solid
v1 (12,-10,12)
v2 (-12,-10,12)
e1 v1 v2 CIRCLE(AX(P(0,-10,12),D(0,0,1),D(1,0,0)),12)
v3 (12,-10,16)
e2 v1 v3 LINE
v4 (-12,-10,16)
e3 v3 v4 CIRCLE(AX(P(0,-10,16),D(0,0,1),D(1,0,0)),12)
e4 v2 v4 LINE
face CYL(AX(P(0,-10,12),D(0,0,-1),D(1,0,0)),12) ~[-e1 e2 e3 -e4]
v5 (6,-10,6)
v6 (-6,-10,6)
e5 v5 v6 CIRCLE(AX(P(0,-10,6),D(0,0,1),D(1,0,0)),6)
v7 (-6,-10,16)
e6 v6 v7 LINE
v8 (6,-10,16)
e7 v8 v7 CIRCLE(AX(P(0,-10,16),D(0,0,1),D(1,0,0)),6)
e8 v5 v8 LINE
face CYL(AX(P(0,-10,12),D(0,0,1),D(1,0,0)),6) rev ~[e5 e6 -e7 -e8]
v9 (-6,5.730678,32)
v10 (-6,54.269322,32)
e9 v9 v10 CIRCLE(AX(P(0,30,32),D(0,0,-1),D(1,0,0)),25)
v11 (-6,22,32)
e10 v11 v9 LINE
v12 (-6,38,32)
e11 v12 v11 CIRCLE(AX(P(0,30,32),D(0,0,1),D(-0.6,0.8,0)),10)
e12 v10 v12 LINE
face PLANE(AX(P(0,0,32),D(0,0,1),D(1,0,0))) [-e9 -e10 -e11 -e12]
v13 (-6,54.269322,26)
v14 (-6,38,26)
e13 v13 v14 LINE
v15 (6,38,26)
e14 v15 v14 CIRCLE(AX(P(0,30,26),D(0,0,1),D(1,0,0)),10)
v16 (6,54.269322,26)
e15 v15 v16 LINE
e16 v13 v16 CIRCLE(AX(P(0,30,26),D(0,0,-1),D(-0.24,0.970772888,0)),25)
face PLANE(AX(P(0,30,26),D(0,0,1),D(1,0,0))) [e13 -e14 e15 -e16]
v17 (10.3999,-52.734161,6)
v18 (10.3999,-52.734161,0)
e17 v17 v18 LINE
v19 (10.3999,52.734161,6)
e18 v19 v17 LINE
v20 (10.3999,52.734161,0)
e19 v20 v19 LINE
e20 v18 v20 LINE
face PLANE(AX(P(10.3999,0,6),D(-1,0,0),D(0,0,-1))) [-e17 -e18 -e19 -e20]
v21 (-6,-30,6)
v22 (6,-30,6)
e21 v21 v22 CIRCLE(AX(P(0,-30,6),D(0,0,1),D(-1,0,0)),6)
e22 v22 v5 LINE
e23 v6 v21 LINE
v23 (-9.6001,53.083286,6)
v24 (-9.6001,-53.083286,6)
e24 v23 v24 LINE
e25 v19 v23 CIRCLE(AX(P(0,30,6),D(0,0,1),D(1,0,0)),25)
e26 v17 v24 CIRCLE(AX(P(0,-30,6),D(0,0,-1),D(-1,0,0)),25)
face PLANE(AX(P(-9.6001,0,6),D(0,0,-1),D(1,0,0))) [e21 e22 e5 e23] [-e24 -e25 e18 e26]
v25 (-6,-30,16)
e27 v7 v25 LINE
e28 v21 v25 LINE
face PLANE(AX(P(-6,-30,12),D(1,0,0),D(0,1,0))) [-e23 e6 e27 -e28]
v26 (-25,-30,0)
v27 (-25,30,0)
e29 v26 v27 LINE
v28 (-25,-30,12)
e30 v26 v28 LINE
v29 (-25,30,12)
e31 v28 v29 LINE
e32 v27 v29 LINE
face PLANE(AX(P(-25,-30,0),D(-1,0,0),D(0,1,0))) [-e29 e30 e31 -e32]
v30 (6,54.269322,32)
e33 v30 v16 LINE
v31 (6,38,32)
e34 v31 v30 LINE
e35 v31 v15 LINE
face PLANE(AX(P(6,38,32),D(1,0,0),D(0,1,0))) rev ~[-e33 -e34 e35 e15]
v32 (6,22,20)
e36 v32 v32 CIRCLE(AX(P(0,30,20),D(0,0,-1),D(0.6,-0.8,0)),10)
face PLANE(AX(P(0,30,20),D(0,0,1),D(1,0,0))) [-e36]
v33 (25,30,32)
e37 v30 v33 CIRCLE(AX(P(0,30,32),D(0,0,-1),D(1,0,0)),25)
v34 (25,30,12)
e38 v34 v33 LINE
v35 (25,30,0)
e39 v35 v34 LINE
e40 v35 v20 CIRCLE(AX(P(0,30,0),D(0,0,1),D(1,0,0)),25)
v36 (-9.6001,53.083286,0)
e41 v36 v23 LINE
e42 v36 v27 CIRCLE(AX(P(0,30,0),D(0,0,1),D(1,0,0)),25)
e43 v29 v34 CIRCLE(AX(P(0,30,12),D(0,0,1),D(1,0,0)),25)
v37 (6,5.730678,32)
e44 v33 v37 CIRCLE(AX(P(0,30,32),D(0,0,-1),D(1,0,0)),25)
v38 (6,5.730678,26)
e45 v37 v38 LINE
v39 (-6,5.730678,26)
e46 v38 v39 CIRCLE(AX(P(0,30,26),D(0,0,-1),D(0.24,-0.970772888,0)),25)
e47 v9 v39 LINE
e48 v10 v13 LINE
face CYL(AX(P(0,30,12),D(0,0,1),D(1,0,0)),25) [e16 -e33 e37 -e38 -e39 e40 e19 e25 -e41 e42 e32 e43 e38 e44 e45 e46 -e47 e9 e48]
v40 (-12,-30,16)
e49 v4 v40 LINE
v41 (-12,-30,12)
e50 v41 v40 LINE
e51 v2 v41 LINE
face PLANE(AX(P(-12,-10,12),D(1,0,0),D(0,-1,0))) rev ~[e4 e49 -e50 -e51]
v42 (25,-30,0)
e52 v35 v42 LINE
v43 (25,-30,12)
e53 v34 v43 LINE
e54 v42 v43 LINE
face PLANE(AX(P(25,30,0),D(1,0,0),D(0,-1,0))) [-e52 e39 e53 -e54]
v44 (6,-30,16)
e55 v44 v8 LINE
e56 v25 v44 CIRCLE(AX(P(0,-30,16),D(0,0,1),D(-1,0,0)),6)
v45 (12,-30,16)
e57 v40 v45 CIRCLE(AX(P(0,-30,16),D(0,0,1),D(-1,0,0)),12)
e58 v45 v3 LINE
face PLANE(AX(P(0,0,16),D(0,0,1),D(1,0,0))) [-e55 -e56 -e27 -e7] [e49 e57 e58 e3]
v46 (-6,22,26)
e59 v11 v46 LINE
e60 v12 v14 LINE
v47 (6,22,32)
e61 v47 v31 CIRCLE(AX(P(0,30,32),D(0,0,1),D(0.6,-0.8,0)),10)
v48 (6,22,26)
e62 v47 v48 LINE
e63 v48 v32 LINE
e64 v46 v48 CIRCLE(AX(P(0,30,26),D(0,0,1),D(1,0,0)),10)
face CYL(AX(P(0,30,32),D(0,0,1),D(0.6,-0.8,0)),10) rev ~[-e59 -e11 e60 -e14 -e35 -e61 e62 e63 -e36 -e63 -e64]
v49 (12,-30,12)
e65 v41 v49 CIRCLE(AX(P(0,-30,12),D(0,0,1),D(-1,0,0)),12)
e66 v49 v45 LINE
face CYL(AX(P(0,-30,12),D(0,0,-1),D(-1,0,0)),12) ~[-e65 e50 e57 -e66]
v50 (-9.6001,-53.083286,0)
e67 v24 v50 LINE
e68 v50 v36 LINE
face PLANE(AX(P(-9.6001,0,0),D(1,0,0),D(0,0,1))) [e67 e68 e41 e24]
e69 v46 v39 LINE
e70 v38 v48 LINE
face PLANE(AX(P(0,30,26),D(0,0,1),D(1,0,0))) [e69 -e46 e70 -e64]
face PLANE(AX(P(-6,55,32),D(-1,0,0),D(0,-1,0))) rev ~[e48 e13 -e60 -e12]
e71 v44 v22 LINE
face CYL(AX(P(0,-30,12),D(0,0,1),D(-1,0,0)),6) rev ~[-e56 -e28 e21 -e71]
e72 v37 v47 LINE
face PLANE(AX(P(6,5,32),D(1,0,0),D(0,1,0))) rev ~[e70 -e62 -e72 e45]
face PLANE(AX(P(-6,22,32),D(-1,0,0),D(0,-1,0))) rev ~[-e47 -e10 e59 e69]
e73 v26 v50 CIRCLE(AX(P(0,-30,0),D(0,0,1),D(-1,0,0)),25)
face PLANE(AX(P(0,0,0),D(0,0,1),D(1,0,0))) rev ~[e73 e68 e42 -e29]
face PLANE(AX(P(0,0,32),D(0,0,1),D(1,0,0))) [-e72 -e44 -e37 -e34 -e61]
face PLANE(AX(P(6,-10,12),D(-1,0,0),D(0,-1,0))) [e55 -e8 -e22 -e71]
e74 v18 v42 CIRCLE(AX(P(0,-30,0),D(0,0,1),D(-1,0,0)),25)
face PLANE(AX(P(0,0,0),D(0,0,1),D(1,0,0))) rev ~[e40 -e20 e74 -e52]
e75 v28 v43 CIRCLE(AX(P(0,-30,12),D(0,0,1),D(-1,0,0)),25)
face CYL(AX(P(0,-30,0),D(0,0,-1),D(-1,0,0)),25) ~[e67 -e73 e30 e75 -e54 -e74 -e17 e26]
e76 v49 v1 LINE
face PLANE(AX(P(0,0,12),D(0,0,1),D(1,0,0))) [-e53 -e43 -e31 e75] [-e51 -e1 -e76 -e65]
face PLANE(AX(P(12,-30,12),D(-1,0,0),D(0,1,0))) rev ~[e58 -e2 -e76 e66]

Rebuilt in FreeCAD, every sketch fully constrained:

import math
import FreeCAD as App
import Part
import Sketcher
from FreeCAD import Vector
Q = App.Units.Quantity


def add_polygon(sketch, points):
    """Adds a closed chain of lines whose ends are joined by coincident constraints."""
    first, n = sketch.GeometryCount, len(points)
    for a, b in zip(points, points[1:] + points[:1]):
        sketch.addGeometry(Part.LineSegment(App.Vector(*a, 0), App.Vector(*b, 0)), False)
    for i in range(n):
        sketch.addConstraint(Sketcher.Constraint("Coincident", first + i, 2, first + (i + 1) % n, 1))

doc = App.newDocument("Part")
params = doc.addObject("Spreadsheet::Sheet", "Params")
for row, (alias, value) in enumerate([
    ("sketch1_radius", "25 mm"),
    ("sketch1_height", "60 mm"),
    ("pad1_length", "12 mm"),
    ("sketch2_diameter", "50 mm"),
    ("pad2_length", "20 mm"),
    ("pad2_length2", "12 mm"),
    ("sketch3_width", "12 mm"),
    ("sketch3_radius", "10 mm"),
    ("pocket1_length", "6 mm"),
    ("sketch4_diameter", "20 mm"),
    ("pocket2_length", "6 mm"),
    ("sketch5_radius", "12 mm"),
    ("sketch5_radius2", "6 mm"),
    ("sketch5_height", "20 mm"),
    ("pad3_length", "4 mm"),
    ("sketch6_width", "20 mm"),
    ("sketch6_height", "6 mm"),
    ("sketch7_radius", "6 mm"),
    ("sketch7_height", "20 mm"),
], start=1):
    params.set(f"A{row}", alias)
    params.set(f"B{row}", "=" + value)
    params.setAlias(f"B{row}", alias)

body = doc.addObject("PartDesign::Body", "Body")

sketch1 = body.newObject("Sketcher::SketchObject", "Sketch")
sketch1.AttachmentSupport = (doc.getObject("XY_Plane"), [""])
sketch1.MapMode = "FlatFace"
sketch1.addGeometry([
    Part.LineSegment(Vector(25, 30, 0), Vector(-25, 30, 0)),
    Part.LineSegment(Vector(-25, 30, 0), Vector(-25, -30, 0)),
    Part.ArcOfCircle(Part.Circle(Vector(0, -30, 0), Vector(0, 0, 1), 25), math.radians(180), math.radians(360)),
    Part.LineSegment(Vector(25, -30, 0), Vector(25, 30, 0)),
], False)
sketch1.addConstraint([
    Sketcher.Constraint("Coincident", 0, 2, 1, 1),
    Sketcher.Constraint("Tangent", 1, 2, 2, 1),
    Sketcher.Constraint("Tangent", 2, 2, 3, 1),
    Sketcher.Constraint("Coincident", 3, 2, 0, 1),
    Sketcher.Constraint("Horizontal", 0),
    Sketcher.Constraint("Vertical", 1),
    Sketcher.Constraint("Vertical", 3),
    Sketcher.Constraint("Symmetric", 0, 2, 2, 2, -1, 1),
    Sketcher.Constraint("Radius", 2, Q("25 mm")),
    Sketcher.Constraint("DistanceY", 1, 2, 1, 1, Q("60 mm")),
])
sketch1.setExpression("Constraints[8]", "Params.sketch1_radius")
sketch1.setExpression("Constraints[9]", "Params.sketch1_height")
pad1 = body.newObject("PartDesign::Pad", "Pad")
pad1.Profile = sketch1
pad1.setExpression("Length", "Params.pad1_length")

sketch2 = body.newObject("Sketcher::SketchObject", "Sketch001")
sketch2.AttachmentSupport = (doc.getObject("XY_Plane"), [""])
sketch2.MapMode = "FlatFace"
sketch2.AttachmentOffset = App.Placement(Vector(0, 0, 12), App.Rotation())
sketch2.addGeometry(Part.Circle(Vector(0, 30, 0), Vector(0, 0, 1), 25), False)
sketch2.addConstraint([
    Sketcher.Constraint("PointOnObject", 0, 3, -2),
    Sketcher.Constraint("Diameter", 0, Q("50 mm")),
    Sketcher.Constraint("DistanceY", -1, 1, 0, 3, Q("30 mm")),
])
sketch2.setExpression("Constraints[1]", "Params.sketch2_diameter")
pad2 = body.newObject("PartDesign::Pad", "Pad001")
pad2.Profile = sketch2
pad2.Type = "TwoLengths"
pad2.setExpression("Length", "Params.pad2_length")
pad2.setExpression("Length2", "Params.pad2_length2")

sketch3 = body.newObject("Sketcher::SketchObject", "Sketch002")
sketch3.AttachmentSupport = (doc.getObject("XY_Plane"), [""])
sketch3.MapMode = "FlatFace"
sketch3.AttachmentOffset = App.Placement(Vector(0, 0, 32), App.Rotation())
sketch3.addGeometry([
    Part.LineSegment(Vector(-6, 22, 0), Vector(-6, 5, 0)),
    Part.LineSegment(Vector(-6, 5, 0), Vector(6, 5, 0)),
    Part.LineSegment(Vector(6, 5, 0), Vector(6, 22, 0)),
    Part.ArcOfCircle(Part.Circle(Vector(0, 30, 0), Vector(0, 0, 1), 10), math.radians(-53), math.radians(53)),
    Part.LineSegment(Vector(6, 38, 0), Vector(6, 55, 0)),
    Part.LineSegment(Vector(6, 55, 0), Vector(-6, 55, 0)),
    Part.LineSegment(Vector(-6, 55, 0), Vector(-6, 38, 0)),
    Part.ArcOfCircle(Part.Circle(Vector(0, 30, 0), Vector(0, 0, 1), 10), math.radians(127), math.radians(233)),
], False)
sketch3.addConstraint([
    Sketcher.Constraint("Coincident", 0, 2, 1, 1),
    Sketcher.Constraint("Coincident", 1, 2, 2, 1),
    Sketcher.Constraint("Coincident", 2, 2, 3, 1),
    Sketcher.Constraint("Coincident", 3, 2, 4, 1),
    Sketcher.Constraint("Coincident", 4, 2, 5, 1),
    Sketcher.Constraint("Coincident", 5, 2, 6, 1),
    Sketcher.Constraint("Coincident", 6, 2, 7, 1),
    Sketcher.Constraint("Coincident", 7, 2, 0, 1),
    Sketcher.Constraint("Vertical", 0),
    Sketcher.Constraint("Horizontal", 1),
    Sketcher.Constraint("Vertical", 2),
    Sketcher.Constraint("Vertical", 4),
    Sketcher.Constraint("Horizontal", 5),
    Sketcher.Constraint("Vertical", 6),
    Sketcher.Constraint("Coincident", 7, 3, 3, 3),
    Sketcher.Constraint("Equal", 3, 7),
    Sketcher.Constraint("Symmetric", 3, 2, 6, 2, -2),
    Sketcher.Constraint("Horizontal", 2, 2, 7, 2),
    Sketcher.Constraint("Vertical", 2, 2, 3, 2),
    Sketcher.Constraint("Equal", 2, 4),
    Sketcher.Constraint("DistanceX", 1, 1, 1, 2, Q("12 mm")),
    Sketcher.Constraint("Radius", 3, Q("10 mm")),
    Sketcher.Constraint("DistanceY", 1, 2, 4, 2, Q("50 mm")),
    Sketcher.Constraint("DistanceY", -1, 1, 3, 3, Q("30 mm")),
])
sketch3.setExpression("Constraints[20]", "Params.sketch3_width")
sketch3.setExpression("Constraints[21]", "Params.sketch3_radius")
pocket1 = body.newObject("PartDesign::Pocket", "Pocket")
pocket1.Profile = sketch3
pocket1.setExpression("Length", "Params.pocket1_length")

sketch4 = body.newObject("Sketcher::SketchObject", "Sketch003")
sketch4.AttachmentSupport = (doc.getObject("XY_Plane"), [""])
sketch4.MapMode = "FlatFace"
sketch4.AttachmentOffset = App.Placement(Vector(0, 0, 26), App.Rotation())
sketch4.addGeometry(Part.Circle(Vector(0, 30, 0), Vector(0, 0, 1), 10), False)
sketch4.addConstraint([
    Sketcher.Constraint("PointOnObject", 0, 3, -2),
    Sketcher.Constraint("Diameter", 0, Q("20 mm")),
    Sketcher.Constraint("DistanceY", -1, 1, 0, 3, Q("30 mm")),
])
sketch4.setExpression("Constraints[1]", "Params.sketch4_diameter")
pocket2 = body.newObject("PartDesign::Pocket", "Pocket001")
pocket2.Profile = sketch4
pocket2.setExpression("Length", "Params.pocket2_length")

sketch5 = body.newObject("Sketcher::SketchObject", "Sketch004")
sketch5.AttachmentSupport = (doc.getObject("XY_Plane"), [""])
sketch5.MapMode = "FlatFace"
sketch5.AttachmentOffset = App.Placement(Vector(0, 0, 12), App.Rotation())
sketch5.addGeometry([
    Part.ArcOfCircle(Part.Circle(Vector(0, -30, 0), Vector(0, 0, 1), 12), math.radians(180), math.radians(360)),
    Part.LineSegment(Vector(12, -30, 0), Vector(12, -10, 0)),
    Part.ArcOfCircle(Part.Circle(Vector(0, -10, 0), Vector(0, 0, 1), 12), math.radians(0), math.radians(180)),
    Part.LineSegment(Vector(-12, -10, 0), Vector(-12, -30, 0)),
    Part.LineSegment(Vector(-6, -30, 0), Vector(-6, -10, 0)),
    Part.ArcOfCircle(Part.Circle(Vector(0, -10, 0), Vector(0, 0, 1), 6), math.radians(0), math.radians(180)),
    Part.LineSegment(Vector(6, -10, 0), Vector(6, -30, 0)),
    Part.ArcOfCircle(Part.Circle(Vector(0, -30, 0), Vector(0, 0, 1), 6), math.radians(180), math.radians(360)),
], False)
sketch5.addConstraint([
    Sketcher.Constraint("Tangent", 0, 2, 1, 1),
    Sketcher.Constraint("Tangent", 1, 2, 2, 1),
    Sketcher.Constraint("Tangent", 2, 2, 3, 1),
    Sketcher.Constraint("Tangent", 3, 2, 0, 1),
    Sketcher.Constraint("Tangent", 4, 2, 5, 2),
    Sketcher.Constraint("Tangent", 5, 1, 6, 1),
    Sketcher.Constraint("Tangent", 6, 2, 7, 2),
    Sketcher.Constraint("Tangent", 7, 1, 4, 1),
    Sketcher.Constraint("Vertical", 1),
    Sketcher.Constraint("Vertical", 3),
    Sketcher.Constraint("Vertical", 4),
    Sketcher.Constraint("Vertical", 6),
    Sketcher.Constraint("Coincident", 5, 3, 2, 3),
    Sketcher.Constraint("PointOnObject", 0, 3, -2),
    Sketcher.Constraint("Horizontal", 7, 3, 0, 2),
    Sketcher.Constraint("Radius", 0, Q("12 mm")),
    Sketcher.Constraint("Radius", 5, Q("6 mm")),
    Sketcher.Constraint("DistanceY", 1, 1, 1, 2, Q("20 mm")),
    Sketcher.Constraint("DistanceY", 0, 3, -1, 1, Q("30 mm")),
])
sketch5.setExpression("Constraints[15]", "Params.sketch5_radius")
sketch5.setExpression("Constraints[16]", "Params.sketch5_radius2")
sketch5.setExpression("Constraints[17]", "Params.sketch5_height")
pad3 = body.newObject("PartDesign::Pad", "Pad002")
pad3.Profile = sketch5
pad3.setExpression("Length", "Params.pad3_length")

sketch6 = body.newObject("Sketcher::SketchObject", "Sketch005")
sketch6.AttachmentSupport = (doc.getObject("XZ_Plane"), [""])
sketch6.MapMode = "FlatFace"
add_polygon(sketch6, [(10, 6), (10, 0), (-10, 0), (-10, 6)])
sketch6.addConstraint([
    Sketcher.Constraint("Vertical", 0),
    Sketcher.Constraint("Horizontal", 1),
    Sketcher.Constraint("Vertical", 2),
    Sketcher.Constraint("Horizontal", 3),
    Sketcher.Constraint("PointOnObject", 0, 2, -1),
    Sketcher.Constraint("DistanceX", 1, 2, 1, 1, Q("20 mm")),
    Sketcher.Constraint("DistanceY", 0, 2, 0, 1, Q("6 mm")),
    Sketcher.Constraint("DistanceX", -1, 1, 0, 2, Q("10.4 mm")),
])
sketch6.setExpression("Constraints[9]", "Params.sketch6_width")
sketch6.setExpression("Constraints[10]", "Params.sketch6_height")
pocket3 = body.newObject("PartDesign::Pocket", "Pocket002")
pocket3.Profile = sketch6
pocket3.Type = "ThroughAll"
pocket3.Midplane = True

sketch7 = body.newObject("Sketcher::SketchObject", "Sketch006")
sketch7.AttachmentSupport = (doc.getObject("XY_Plane"), [""])
sketch7.MapMode = "FlatFace"
sketch7.AttachmentOffset = App.Placement(Vector(0, 0, 12), App.Rotation())
sketch7.addGeometry([
    Part.LineSegment(Vector(6, -30, 0), Vector(6, -10, 0)),
    Part.ArcOfCircle(Part.Circle(Vector(0, -10, 0), Vector(0, 0, 1), 6), math.radians(0), math.radians(180)),
    Part.LineSegment(Vector(-6, -10, 0), Vector(-6, -30, 0)),
    Part.ArcOfCircle(Part.Circle(Vector(0, -30, 0), Vector(0, 0, 1), 6), math.radians(180), math.radians(360)),
], False)
sketch7.addConstraint([
    Sketcher.Constraint("Tangent", 0, 2, 1, 1),
    Sketcher.Constraint("Tangent", 1, 2, 2, 1),
    Sketcher.Constraint("Tangent", 2, 2, 3, 1),
    Sketcher.Constraint("Tangent", 3, 2, 0, 1),
    Sketcher.Constraint("Vertical", 0),
    Sketcher.Constraint("Vertical", 2),
    Sketcher.Constraint("PointOnObject", 1, 3, -2),
    Sketcher.Constraint("Radius", 1, Q("6 mm")),
    Sketcher.Constraint("DistanceY", 0, 1, 0, 2, Q("20 mm")),
    Sketcher.Constraint("DistanceY", 1, 3, -1, 1, Q("10 mm")),
])
sketch7.setExpression("Constraints[7]", "Params.sketch7_radius")
sketch7.setExpression("Constraints[8]", "Params.sketch7_height")
pocket4 = body.newObject("PartDesign::Pocket", "Pocket003")
pocket4.Profile = sketch7
pocket4.Type = "ThroughAll"

doc.recompute()
